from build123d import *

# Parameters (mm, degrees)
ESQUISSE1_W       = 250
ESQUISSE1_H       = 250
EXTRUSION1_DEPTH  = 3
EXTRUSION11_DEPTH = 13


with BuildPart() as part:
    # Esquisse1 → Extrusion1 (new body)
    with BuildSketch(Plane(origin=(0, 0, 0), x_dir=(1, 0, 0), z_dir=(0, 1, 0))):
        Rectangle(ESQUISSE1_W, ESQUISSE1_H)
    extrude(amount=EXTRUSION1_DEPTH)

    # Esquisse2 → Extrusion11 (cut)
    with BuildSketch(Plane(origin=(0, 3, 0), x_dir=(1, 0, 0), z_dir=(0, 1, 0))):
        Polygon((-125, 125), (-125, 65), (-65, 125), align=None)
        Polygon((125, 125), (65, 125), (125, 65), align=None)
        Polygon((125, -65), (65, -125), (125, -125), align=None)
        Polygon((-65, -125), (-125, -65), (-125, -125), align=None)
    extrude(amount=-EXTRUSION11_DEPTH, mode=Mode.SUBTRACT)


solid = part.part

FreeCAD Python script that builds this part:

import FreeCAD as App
import Part
import Sketcher
from FreeCAD import Vector
Q = App.Units.Quantity

doc = App.newDocument("Part")
params = doc.addObject("Spreadsheet::Sheet", "Params")
for row, (alias, value) in enumerate([
    ("sketch1_width", "250 mm"),
    ("pad1_length", "3 mm"),
    ("sketch2_width", "60 mm"),
    ("pocket1_length", "13 mm"),
], start=1):
    params.set(f"A{row}", alias)
    params.set(f"B{row}", "=" + value)
    params.setAlias(f"B{row}", alias)

body = doc.addObject("PartDesign::Body", "Body")

sketch1 = body.newObject("Sketcher::SketchObject", "Sketch")
sketch1.AttachmentSupport = (doc.getObject("XZ_Plane"), [""])
sketch1.MapMode = "FlatFace"
sketch1.addGeometry([
    Part.LineSegment(Vector(-125, -125, 0), Vector(-125, 125, 0)),
    Part.LineSegment(Vector(-125, 125, 0), Vector(125, 125, 0)),
    Part.LineSegment(Vector(125, 125, 0), Vector(125, -125, 0)),
    Part.LineSegment(Vector(125, -125, 0), Vector(-125, -125, 0)),
], False)
sketch1.addConstraint([
    Sketcher.Constraint("Coincident", 0, 2, 1, 1),
    Sketcher.Constraint("Coincident", 1, 2, 2, 1),
    Sketcher.Constraint("Coincident", 2, 2, 3, 1),
    Sketcher.Constraint("Coincident", 3, 2, 0, 1),
    Sketcher.Constraint("Vertical", 0),
    Sketcher.Constraint("Horizontal", 1),
    Sketcher.Constraint("Vertical", 2),
    Sketcher.Constraint("Horizontal", 3),
    Sketcher.Constraint("Symmetric", 0, 2, 2, 2, -1, 1),
    Sketcher.Constraint("Equal", 3, 0),
    Sketcher.Constraint("DistanceX", 1, 1, 1, 2, Q("250 mm")),
])
sketch1.setExpression("Constraints[10]", "Params.sketch1_width")
pad1 = body.newObject("PartDesign::Pad", "Pad")
pad1.Profile = sketch1
pad1.setExpression("Length", "Params.pad1_length")
pad1.Reversed = True

sketch2 = body.newObject("Sketcher::SketchObject", "Sketch001")
sketch2.AttachmentSupport = (doc.getObject("XZ_Plane"), [""])
sketch2.MapMode = "FlatFace"
sketch2.AttachmentOffset = App.Placement(Vector(0, 0, -3), App.Rotation())
sketch2.addGeometry([
    Part.LineSegment(Vector(-125, -125, 0), Vector(-125, -65, 0)),
    Part.LineSegment(Vector(-125, -65, 0), Vector(-65, -125, 0)),
    Part.LineSegment(Vector(-65, -125, 0), Vector(-125, -125, 0)),
    Part.LineSegment(Vector(125, -125, 0), Vector(65, -125, 0)),
    Part.LineSegment(Vector(65, -125, 0), Vector(125, -65, 0)),
    Part.LineSegment(Vector(125, -65, 0), Vector(125, -125, 0)),
    Part.LineSegment(Vector(125, 65, 0), Vector(65, 125, 0)),
    Part.LineSegment(Vector(65, 125, 0), Vector(125, 125, 0)),
    Part.LineSegment(Vector(125, 125, 0), Vector(125, 65, 0)),
    Part.LineSegment(Vector(-65, 125, 0), Vector(-125, 65, 0)),
    Part.LineSegment(Vector(-125, 65, 0), Vector(-125, 125, 0)),
    Part.LineSegment(Vector(-125, 125, 0), Vector(-65, 125, 0)),
], False)
sketch2.addConstraint([
    Sketcher.Constraint("Coincident", 0, 2, 1, 1),
    Sketcher.Constraint("Coincident", 1, 2, 2, 1),
    Sketcher.Constraint("Coincident", 2, 2, 0, 1),
    Sketcher.Constraint("Coincident", 3, 2, 4, 1),
    Sketcher.Constraint("Coincident", 4, 2, 5, 1),
    Sketcher.Constraint("Coincident", 5, 2, 3, 1),
    Sketcher.Constraint("Coincident", 6, 2, 7, 1),
    Sketcher.Constraint("Coincident", 7, 2, 8, 1),
    Sketcher.Constraint("Coincident", 8, 2, 6, 1),
    Sketcher.Constraint("Coincident", 9, 2, 10, 1),
    Sketcher.Constraint("Coincident", 10, 2, 11, 1),
    Sketcher.Constraint("Coincident", 11, 2, 9, 1),
    Sketcher.Constraint("Vertical", 0),
    Sketcher.Constraint("Horizontal", 2),
    Sketcher.Constraint("Horizontal", 3),
    Sketcher.Constraint("Vertical", 5),
    Sketcher.Constraint("Horizontal", 7),
    Sketcher.Constraint("Vertical", 8),
    Sketcher.Constraint("Vertical", 10),
    Sketcher.Constraint("Horizontal", 11),
    Sketcher.Constraint("Symmetric", 1, 2, 6, 2, -1, 1),
    Sketcher.Constraint("Symmetric", 0, 2, 8, 2, -1, 1),
    Sketcher.Constraint("Symmetric", 4, 2, 9, 2, -1, 1),
    Sketcher.Constraint("Symmetric", 3, 2, 11, 2, -1, 1),
    Sketcher.Constraint("Symmetric", 1, 2, 3, 2, -2),
    Sketcher.Constraint("Symmetric", 0, 2, 4, 2, -2),
    Sketcher.Constraint("Perpendicular", 1, 4),
    Sketcher.Constraint("DistanceX", 2, 2, 2, 1, Q("60 mm")),
    Sketcher.Constraint("DistanceX", 0, 2, -1, 1, Q("125 mm")),
    Sketcher.Constraint("DistanceY", 0, 2, -1, 1, Q("65 mm")),
])
sketch2.setExpression("Constraints[27]", "Params.sketch2_width")
pocket1 = body.newObject("PartDesign::Pocket", "Pocket")
pocket1.Profile = sketch2
pocket1.setExpression("Length", "Params.pocket1_length")
pocket1.Reversed = True

doc.recompute()
